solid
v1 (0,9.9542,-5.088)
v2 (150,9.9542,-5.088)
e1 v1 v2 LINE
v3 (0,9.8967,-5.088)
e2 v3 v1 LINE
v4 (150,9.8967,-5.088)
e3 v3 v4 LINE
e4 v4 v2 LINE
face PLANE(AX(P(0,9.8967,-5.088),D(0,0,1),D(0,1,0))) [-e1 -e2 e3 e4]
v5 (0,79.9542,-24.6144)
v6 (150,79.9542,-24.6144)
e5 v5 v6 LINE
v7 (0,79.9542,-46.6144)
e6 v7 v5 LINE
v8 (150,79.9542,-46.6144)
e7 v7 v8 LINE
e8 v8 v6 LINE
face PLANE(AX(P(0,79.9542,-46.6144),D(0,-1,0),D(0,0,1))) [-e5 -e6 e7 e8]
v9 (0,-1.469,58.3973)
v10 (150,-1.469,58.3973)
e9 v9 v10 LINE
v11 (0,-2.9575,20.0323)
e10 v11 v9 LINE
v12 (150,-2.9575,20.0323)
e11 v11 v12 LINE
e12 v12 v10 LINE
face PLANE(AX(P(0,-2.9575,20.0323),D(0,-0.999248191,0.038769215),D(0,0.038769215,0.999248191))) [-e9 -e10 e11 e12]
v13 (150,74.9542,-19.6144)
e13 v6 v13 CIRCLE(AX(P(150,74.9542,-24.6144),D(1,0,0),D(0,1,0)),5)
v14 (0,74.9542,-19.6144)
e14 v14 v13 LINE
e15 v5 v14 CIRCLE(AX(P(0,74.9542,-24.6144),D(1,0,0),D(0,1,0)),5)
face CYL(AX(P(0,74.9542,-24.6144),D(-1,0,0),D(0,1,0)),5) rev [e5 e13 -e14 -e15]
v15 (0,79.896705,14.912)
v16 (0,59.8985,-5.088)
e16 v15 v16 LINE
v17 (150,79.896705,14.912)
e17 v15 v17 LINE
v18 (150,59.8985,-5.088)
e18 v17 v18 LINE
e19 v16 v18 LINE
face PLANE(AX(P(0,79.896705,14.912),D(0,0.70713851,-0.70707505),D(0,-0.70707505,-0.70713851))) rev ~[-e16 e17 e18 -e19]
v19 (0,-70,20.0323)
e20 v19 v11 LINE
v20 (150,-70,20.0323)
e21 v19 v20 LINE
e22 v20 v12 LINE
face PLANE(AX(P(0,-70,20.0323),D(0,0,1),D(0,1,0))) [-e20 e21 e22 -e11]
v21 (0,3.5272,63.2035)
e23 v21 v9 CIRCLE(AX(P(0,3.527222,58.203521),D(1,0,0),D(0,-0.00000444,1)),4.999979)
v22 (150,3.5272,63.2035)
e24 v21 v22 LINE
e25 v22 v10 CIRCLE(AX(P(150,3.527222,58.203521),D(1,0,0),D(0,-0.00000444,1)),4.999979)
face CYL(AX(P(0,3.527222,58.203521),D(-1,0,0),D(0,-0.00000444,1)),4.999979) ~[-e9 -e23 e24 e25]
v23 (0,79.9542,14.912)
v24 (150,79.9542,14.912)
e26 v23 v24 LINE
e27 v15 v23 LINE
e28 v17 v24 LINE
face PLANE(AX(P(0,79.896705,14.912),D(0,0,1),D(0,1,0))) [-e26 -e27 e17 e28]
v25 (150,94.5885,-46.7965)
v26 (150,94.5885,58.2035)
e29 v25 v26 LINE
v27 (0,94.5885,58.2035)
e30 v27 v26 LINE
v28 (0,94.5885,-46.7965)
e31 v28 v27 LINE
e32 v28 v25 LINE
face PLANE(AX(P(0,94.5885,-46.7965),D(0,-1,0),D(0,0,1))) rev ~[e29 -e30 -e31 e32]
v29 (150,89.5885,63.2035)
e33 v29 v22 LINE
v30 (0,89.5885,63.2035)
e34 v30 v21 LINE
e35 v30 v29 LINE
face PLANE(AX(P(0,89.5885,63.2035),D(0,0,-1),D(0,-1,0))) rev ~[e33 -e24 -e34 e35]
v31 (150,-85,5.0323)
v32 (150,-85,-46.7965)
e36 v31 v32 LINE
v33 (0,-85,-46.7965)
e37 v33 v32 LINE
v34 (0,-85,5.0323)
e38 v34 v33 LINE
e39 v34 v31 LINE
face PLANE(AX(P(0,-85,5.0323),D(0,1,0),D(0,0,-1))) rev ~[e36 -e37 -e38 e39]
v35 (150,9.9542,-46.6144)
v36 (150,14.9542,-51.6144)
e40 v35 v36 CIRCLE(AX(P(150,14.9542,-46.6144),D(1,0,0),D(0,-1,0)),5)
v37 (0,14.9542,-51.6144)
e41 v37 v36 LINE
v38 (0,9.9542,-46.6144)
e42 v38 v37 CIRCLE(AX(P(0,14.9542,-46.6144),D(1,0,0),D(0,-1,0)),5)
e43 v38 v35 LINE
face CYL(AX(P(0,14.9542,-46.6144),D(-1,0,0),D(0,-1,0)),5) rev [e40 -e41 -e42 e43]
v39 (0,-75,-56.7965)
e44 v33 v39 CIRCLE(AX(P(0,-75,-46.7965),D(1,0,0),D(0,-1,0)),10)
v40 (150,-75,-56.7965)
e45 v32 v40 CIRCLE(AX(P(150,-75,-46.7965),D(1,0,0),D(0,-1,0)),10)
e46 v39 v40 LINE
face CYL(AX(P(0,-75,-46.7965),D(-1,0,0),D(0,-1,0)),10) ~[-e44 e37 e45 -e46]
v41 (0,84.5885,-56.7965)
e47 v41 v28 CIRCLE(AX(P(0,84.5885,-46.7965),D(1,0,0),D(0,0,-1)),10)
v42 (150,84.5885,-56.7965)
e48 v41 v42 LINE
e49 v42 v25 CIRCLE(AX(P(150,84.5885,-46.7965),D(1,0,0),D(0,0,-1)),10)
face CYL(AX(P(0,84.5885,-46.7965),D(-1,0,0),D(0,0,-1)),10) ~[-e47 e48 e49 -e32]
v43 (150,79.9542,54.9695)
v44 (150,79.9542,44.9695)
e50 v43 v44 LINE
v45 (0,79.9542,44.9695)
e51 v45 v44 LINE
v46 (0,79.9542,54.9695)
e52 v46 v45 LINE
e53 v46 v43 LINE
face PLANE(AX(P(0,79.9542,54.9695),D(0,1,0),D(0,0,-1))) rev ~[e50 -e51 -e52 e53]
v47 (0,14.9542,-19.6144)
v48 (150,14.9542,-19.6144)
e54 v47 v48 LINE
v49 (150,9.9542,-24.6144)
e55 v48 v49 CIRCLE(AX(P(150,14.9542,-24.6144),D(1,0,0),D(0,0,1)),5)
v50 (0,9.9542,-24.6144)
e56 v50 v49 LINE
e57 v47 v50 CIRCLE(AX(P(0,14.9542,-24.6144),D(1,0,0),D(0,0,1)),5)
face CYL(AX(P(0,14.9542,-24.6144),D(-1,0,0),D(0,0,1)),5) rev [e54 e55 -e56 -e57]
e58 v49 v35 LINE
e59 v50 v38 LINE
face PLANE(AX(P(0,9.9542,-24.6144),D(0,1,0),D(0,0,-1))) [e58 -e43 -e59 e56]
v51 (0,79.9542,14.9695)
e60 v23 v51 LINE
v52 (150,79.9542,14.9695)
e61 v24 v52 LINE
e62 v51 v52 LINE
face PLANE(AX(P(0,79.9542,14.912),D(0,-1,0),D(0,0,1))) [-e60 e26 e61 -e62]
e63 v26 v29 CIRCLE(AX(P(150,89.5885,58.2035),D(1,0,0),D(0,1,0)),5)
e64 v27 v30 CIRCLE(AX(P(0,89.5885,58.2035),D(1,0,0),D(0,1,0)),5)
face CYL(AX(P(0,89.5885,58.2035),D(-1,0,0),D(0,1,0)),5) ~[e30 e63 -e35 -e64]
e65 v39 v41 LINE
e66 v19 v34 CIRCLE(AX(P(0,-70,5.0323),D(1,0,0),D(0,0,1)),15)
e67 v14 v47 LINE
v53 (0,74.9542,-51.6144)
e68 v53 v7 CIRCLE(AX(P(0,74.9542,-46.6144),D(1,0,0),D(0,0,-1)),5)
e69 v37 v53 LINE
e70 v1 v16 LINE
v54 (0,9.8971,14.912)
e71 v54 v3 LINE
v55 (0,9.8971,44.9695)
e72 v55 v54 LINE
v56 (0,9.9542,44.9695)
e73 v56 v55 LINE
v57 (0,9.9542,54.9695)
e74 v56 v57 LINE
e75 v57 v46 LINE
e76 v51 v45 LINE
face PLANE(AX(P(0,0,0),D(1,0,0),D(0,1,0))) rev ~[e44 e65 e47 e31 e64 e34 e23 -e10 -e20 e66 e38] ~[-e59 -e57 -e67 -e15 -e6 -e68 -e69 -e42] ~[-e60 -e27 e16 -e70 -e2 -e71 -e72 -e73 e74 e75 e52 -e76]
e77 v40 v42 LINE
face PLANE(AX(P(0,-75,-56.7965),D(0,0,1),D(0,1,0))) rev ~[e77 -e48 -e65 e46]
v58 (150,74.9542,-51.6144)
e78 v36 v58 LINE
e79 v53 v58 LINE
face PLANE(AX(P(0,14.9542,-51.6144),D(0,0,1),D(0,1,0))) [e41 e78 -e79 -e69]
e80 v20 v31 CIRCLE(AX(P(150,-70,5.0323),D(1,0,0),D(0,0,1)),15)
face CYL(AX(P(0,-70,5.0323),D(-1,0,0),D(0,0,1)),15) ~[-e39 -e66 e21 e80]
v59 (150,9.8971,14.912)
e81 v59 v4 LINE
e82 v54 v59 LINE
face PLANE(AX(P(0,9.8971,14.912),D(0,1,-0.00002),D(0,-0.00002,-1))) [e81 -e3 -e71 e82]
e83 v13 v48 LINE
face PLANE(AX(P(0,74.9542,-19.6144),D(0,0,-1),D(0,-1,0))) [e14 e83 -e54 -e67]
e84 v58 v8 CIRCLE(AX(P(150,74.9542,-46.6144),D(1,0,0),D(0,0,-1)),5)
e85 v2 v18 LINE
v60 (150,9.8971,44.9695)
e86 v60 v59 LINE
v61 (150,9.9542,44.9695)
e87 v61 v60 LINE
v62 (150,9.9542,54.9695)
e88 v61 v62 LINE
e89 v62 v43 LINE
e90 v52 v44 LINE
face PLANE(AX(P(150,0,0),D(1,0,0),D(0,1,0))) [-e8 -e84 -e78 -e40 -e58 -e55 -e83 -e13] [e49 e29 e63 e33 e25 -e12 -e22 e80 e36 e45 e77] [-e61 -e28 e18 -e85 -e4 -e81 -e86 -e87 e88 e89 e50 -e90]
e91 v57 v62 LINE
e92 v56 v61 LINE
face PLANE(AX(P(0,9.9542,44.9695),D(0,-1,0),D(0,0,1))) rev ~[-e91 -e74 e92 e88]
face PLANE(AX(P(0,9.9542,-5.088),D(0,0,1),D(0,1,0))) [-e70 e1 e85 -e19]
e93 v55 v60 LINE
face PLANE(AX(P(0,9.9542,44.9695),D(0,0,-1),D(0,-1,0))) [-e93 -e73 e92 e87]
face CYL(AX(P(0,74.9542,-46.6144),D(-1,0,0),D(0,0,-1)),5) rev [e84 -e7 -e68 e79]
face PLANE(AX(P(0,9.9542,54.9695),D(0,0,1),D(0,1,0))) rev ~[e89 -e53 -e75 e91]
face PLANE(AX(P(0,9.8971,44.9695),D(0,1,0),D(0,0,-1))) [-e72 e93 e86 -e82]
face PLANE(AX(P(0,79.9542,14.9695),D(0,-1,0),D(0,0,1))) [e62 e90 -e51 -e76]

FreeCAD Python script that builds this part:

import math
import FreeCAD as App
import Part
import Sketcher
from FreeCAD import Vector
Q = App.Units.Quantity

doc = App.newDocument("Part")
params = doc.addObject("Spreadsheet::Sheet", "Params")
for row, (alias, value) in enumerate([
    ("sketch1_radius", "10 mm"),
    ("sketch1_radius2", "5 mm"),
    ("sketch1_radius3", "15 mm"),
    ("sketch1_width", "70 mm"),
    ("sketch1_height", "10 mm"),
    ("pad1_length", "150 mm"),
], start=1):
    params.set(f"A{row}", alias)
    params.set(f"B{row}", "=" + value)
    params.setAlias(f"B{row}", alias)

body = doc.addObject("PartDesign::Body", "Body")

# Sketch on YZ plane
sketch1 = body.newObject("Sketcher::SketchObject", "Sketch")
sketch1.AttachmentSupport = (doc.getObject("YZ_Plane"), [""])
sketch1.MapMode = "FlatFace"
sketch1.addGeometry([
    Part.ArcOfCircle(Part.Circle(Vector(-75, -46.8, 0), Vector(0, 0, 1), 10), math.radians(180), math.radians(270)),  # 0
    Part.LineSegment(Vector(-75, -56.8, 0), Vector(84.59, -56.8, 0)),  # 1
    Part.ArcOfCircle(Part.Circle(Vector(84.59, -46.8, 0), Vector(0, 0, 1), 10), math.radians(-90), math.radians(0)),  # 2
    Part.LineSegment(Vector(94.59, -46.8, 0), Vector(94.59, 58.2, 0)),  # 3
    Part.ArcOfCircle(Part.Circle(Vector(89.59, 58.2, 0), Vector(0, 0, 1), 5), math.radians(0), math.radians(90)),  # 4
    Part.LineSegment(Vector(89.59, 63.2, 0), Vector(3.53, 63.2, 0)),  # 5
    Part.ArcOfCircle(Part.Circle(Vector(3.53, 58.2, 0), Vector(0, 0, 1), 5), math.radians(90), math.radians(178)),  # 6
    Part.LineSegment(Vector(-1.47, 58.4, 0), Vector(-2.96, 20.03, 0)),  # 7
    Part.LineSegment(Vector(-2.96, 20.03, 0), Vector(-70, 20.03, 0)),  # 8
    Part.ArcOfCircle(Part.Circle(Vector(-70, 5.03, 0), Vector(0, 0, 1), 15), math.radians(90), math.radians(180)),  # 9
    Part.LineSegment(Vector(-85, 5.03, 0), Vector(-85, -46.8, 0)),  # 10
    Part.LineSegment(Vector(14.95, -19.61, 0), Vector(74.95, -19.61, 0)),  # 11
    Part.ArcOfCircle(Part.Circle(Vector(74.95, -24.61, 0), Vector(0, 0, 1), 5), math.radians(0), math.radians(90)),  # 12
    Part.LineSegment(Vector(79.95, -24.61, 0), Vector(79.95, -46.61, 0)),  # 13
    Part.ArcOfCircle(Part.Circle(Vector(74.95, -46.61, 0), Vector(0, 0, 1), 5), math.radians(-90), math.radians(0)),  # 14
    Part.LineSegment(Vector(74.95, -51.61, 0), Vector(14.95, -51.61, 0)),  # 15
    Part.ArcOfCircle(Part.Circle(Vector(14.95, -46.61, 0), Vector(0, 0, 1), 5), math.radians(180), math.radians(270)),  # 16
    Part.LineSegment(Vector(9.95, -46.61, 0), Vector(9.95, -24.61, 0)),  # 17
    Part.ArcOfCircle(Part.Circle(Vector(14.95, -24.61, 0), Vector(0, 0, 1), 5), math.radians(90), math.radians(180)),  # 18
    Part.LineSegment(Vector(79.95, 54.97, 0), Vector(79.95, 14.91, 0)),  # 19
    Part.LineSegment(Vector(79.95, 14.91, 0), Vector(79.9, 14.91, 0)),  # 20
    Part.LineSegment(Vector(79.9, 14.91, 0), Vector(59.9, -5.09, 0)),  # 21
    Part.LineSegment(Vector(59.9, -5.09, 0), Vector(9.9, -5.09, 0)),  # 22
    Part.LineSegment(Vector(9.9, -5.09, 0), Vector(9.9, 14.91, 0)),  # 23
    Part.LineSegment(Vector(9.9, 14.91, 0), Vector(9.9, 44.97, 0)),  # 24
    Part.LineSegment(Vector(9.9, 44.97, 0), Vector(9.95, 44.97, 0)),  # 25
    Part.LineSegment(Vector(9.95, 44.97, 0), Vector(9.95, 54.97, 0)),  # 26
    Part.LineSegment(Vector(9.95, 54.97, 0), Vector(79.95, 54.97, 0)),  # 27
], False)
sketch1.addConstraint([
    Sketcher.Constraint("Tangent", 0, 2, 1, 1),
    Sketcher.Constraint("Tangent", 1, 2, 2, 1),
    Sketcher.Constraint("Tangent", 2, 2, 3, 1),
    Sketcher.Constraint("Tangent", 3, 2, 4, 1),
    Sketcher.Constraint("Tangent", 4, 2, 5, 1),
    Sketcher.Constraint("Tangent", 5, 2, 6, 1),
    Sketcher.Constraint("Tangent", 6, 2, 7, 1),
    Sketcher.Constraint("Coincident", 7, 2, 8, 1),
    Sketcher.Constraint("Tangent", 8, 2, 9, 1),
    Sketcher.Constraint("Tangent", 9, 2, 10, 1),
    Sketcher.Constraint("Tangent", 10, 2, 0, 1),
    Sketcher.Constraint("Tangent", 11, 2, 12, 2),
    Sketcher.Constraint("Tangent", 12, 1, 13, 1),
    Sketcher.Constraint("Tangent", 13, 2, 14, 2),
    Sketcher.Constraint("Tangent", 14, 1, 15, 1),
    Sketcher.Constraint("Tangent", 15, 2, 16, 2),
    Sketcher.Constraint("Tangent", 16, 1, 17, 1),
    Sketcher.Constraint("Tangent", 17, 2, 18, 2),
    Sketcher.Constraint("Tangent", 18, 1, 11, 1),
    Sketcher.Constraint("Coincident", 19, 2, 20, 1),
    Sketcher.Constraint("Coincident", 20, 2, 21, 1),
    Sketcher.Constraint("Coincident", 21, 2, 22, 1),
    Sketcher.Constraint("Coincident", 22, 2, 23, 1),
    Sketcher.Constraint("Coincident", 23, 2, 24, 1),
    Sketcher.Constraint("Coincident", 24, 2, 25, 1),
    Sketcher.Constraint("Coincident", 25, 2, 26, 1),
    Sketcher.Constraint("Coincident", 26, 2, 27, 1),
    Sketcher.Constraint("Coincident", 27, 2, 19, 1),
    Sketcher.Constraint("Horizontal", 1),
    Sketcher.Constraint("Vertical", 3),
    Sketcher.Constraint("Horizontal", 5),
    Sketcher.Constraint("Horizontal", 8),
    Sketcher.Constraint("Vertical", 10),
    Sketcher.Constraint("Horizontal", 11),
    Sketcher.Constraint("Vertical", 13),
    Sketcher.Constraint("Horizontal", 15),
    Sketcher.Constraint("Vertical", 17),
    Sketcher.Constraint("Vertical", 19),
    Sketcher.Constraint("Horizontal", 20),
    Sketcher.Constraint("Horizontal", 22),
    Sketcher.Constraint("Vertical", 24),
    Sketcher.Constraint("Horizontal", 25),
    Sketcher.Constraint("Vertical", 26),
    Sketcher.Constraint("Horizontal", 27),
    Sketcher.Constraint("Equal", 0, 2),
    Sketcher.Constraint("Equal", 4, 6),
    Sketcher.Constraint("Equal", 6, 12),
    Sketcher.Constraint("Equal", 12, 14),
    Sketcher.Constraint("Equal", 14, 16),
    Sketcher.Constraint("Equal", 16, 18),
    Sketcher.Constraint("Horizontal", 20, 2, 23, 2),
    Sketcher.Constraint("Vertical", 13, 2, 19, 2),
    Sketcher.Constraint("Vertical", 17, 2, 25, 2),
    Sketcher.Constraint("Radius", 0, 10.0),
    Sketcher.Constraint("Radius", 4, 5.0),
    Sketcher.Constraint("Radius", 9, 15.0),
    Sketcher.Constraint("DistanceX", 27, 1, 27, 2, 70.0),
    Sketcher.Constraint("DistanceY", 26, 1, 26, 2, 10.0),
    Sketcher.Constraint("DistanceX", 9, 3, -1, 1, 70.0),
    Sketcher.Constraint("DistanceY", 15, 2, 18, 1, 32.0),
    Sketcher.Constraint("DistanceY", 3, 1, 3, 2, 105.0),
    Sketcher.Constraint("Angle", 23, Q("89.9989 deg")),
    Sketcher.Constraint("Distance", 23, 20.0),
    Sketcher.Constraint("DistanceX", 25, 1, 25, 2, 0.057),
    Sketcher.Constraint("DistanceX", 6, 3, 24, 2, 6.37),
    Sketcher.Constraint("Distance", 21, 28.283),
    Sketcher.Constraint("DistanceX", 1, 1, 1, 2, 159.5885),
    Sketcher.Constraint("DistanceX", 5, 2, 5, 1, 86.0613),
    Sketcher.Constraint("DistanceX", 8, 2, 8, 1, 67.0425),
    Sketcher.Constraint("DistanceX", 20, 2, 20, 1, 0.0575),
    Sketcher.Constraint("DistanceY", 10, 2, 10, 1, 51.8288),
    Sketcher.Constraint("DistanceY", 19, 2, 19, 1, 40.0575),
    Sketcher.Constraint("DistanceY", -1, 1, 19, 2, 14.912),
    Sketcher.Constraint("DistanceY", 2, 3, 12, 3, 22.182),
    Sketcher.Constraint("DistanceY", 24, 2, 6, 3, 13.234),
])
sketch1.setExpression("Constraints[53]", "Params.sketch1_radius")
sketch1.setExpression("Constraints[54]", "Params.sketch1_radius2")
sketch1.setExpression("Constraints[55]", "Params.sketch1_radius3")
sketch1.setExpression("Constraints[56]", "Params.sketch1_width")
sketch1.setExpression("Constraints[57]", "Params.sketch1_height")
pad1 = body.newObject("PartDesign::Pad", "Pad")
pad1.Profile = sketch1
pad1.setExpression("Length", "Params.pad1_length")

doc.recompute()
